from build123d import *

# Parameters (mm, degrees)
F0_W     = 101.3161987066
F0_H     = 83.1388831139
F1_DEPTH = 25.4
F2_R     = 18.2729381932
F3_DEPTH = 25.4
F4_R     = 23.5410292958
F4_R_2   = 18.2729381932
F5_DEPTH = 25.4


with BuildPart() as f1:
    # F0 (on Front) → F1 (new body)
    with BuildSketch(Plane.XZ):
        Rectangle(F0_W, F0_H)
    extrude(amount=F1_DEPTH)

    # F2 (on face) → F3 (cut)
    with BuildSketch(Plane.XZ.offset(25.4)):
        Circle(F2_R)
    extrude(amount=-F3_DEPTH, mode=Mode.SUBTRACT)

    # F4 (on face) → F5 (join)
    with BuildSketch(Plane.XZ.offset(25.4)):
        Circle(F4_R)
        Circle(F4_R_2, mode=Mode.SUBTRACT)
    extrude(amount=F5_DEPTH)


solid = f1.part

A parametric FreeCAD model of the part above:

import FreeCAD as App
import Part
import Sketcher
Q = App.Units.Quantity

doc = App.newDocument("Part")
params = doc.addObject("Spreadsheet::Sheet", "Params")
for row, (alias, value) in enumerate([
    ("pad1_length", "1 in"),
    ("pocket1_length", "1 in"),
    ("pad2_length", "1 in"),
], start=1):
    params.set(f"A{row}", alias)
    params.set(f"B{row}", "=" + value)
    params.setAlias(f"B{row}", alias)

body = doc.addObject("PartDesign::Body", "Body")

# Sketch on XZ plane
sketch1 = doc.addObject("Sketcher::SketchObject", "Sketch")
body.addObject(sketch1)
sketch1.AttachmentSupport = (doc.XZ_Plane, [""])
sketch1.MapMode = "FlatFace"
sketch1.addGeometry(Part.LineSegment(App.Vector(-51, 42, 0), App.Vector(-51, -42, 0)), False)
sketch1.addGeometry(Part.LineSegment(App.Vector(-51, -42, 0), App.Vector(51, -42, 0)), False)
sketch1.addGeometry(Part.LineSegment(App.Vector(51, -42, 0), App.Vector(51, 42, 0)), False)
sketch1.addGeometry(Part.LineSegment(App.Vector(51, 42, 0), App.Vector(-51, 42, 0)), False)
sketch1.addConstraint(Sketcher.Constraint("Coincident", 0, 2, 1, 1))
sketch1.addConstraint(Sketcher.Constraint("Coincident", 1, 2, 2, 1))
sketch1.addConstraint(Sketcher.Constraint("Coincident", 2, 2, 3, 1))
sketch1.addConstraint(Sketcher.Constraint("Coincident", 3, 2, 0, 1))
sketch1.addConstraint(Sketcher.Constraint("Vertical", 0))
sketch1.addConstraint(Sketcher.Constraint("Horizontal", 1))
sketch1.addConstraint(Sketcher.Constraint("Vertical", 2))
sketch1.addConstraint(Sketcher.Constraint("Horizontal", 3))
sketch1.addConstraint(Sketcher.Constraint("Symmetric", 0, 2, 2, 2, -1, 1))
sketch1.addConstraint(Sketcher.Constraint("DistanceX", 1, 1, 1, 2, Q("101.316199 mm")))
sketch1.addConstraint(Sketcher.Constraint("DistanceY", 0, 2, 0, 1, Q("83.138883 mm")))
pad1 = doc.addObject("PartDesign::Pad", "Pad")
body.addObject(pad1)
pad1.Profile = sketch1
pad1.setExpression("Length", "Params.pad1_length")

# Sketch on XZ plane
sketch2 = doc.addObject("Sketcher::SketchObject", "Sketch001")
body.addObject(sketch2)
sketch2.AttachmentSupport = (doc.XZ_Plane, [""])
sketch2.MapMode = "FlatFace"
sketch2.AttachmentOffset = App.Placement(App.Vector(0, 0, 1 * 25.4), App.Rotation())
sketch2.addGeometry(Part.Circle(App.Vector(0, 0, 0), App.Vector(0, 0, 1), 18), False)
sketch2.addConstraint(Sketcher.Constraint("Coincident", 0, 3, -1, 1))
sketch2.addConstraint(Sketcher.Constraint("Diameter", 0, Q("36.545876 mm")))
pocket1 = doc.addObject("PartDesign::Pocket", "Pocket")
body.addObject(pocket1)
pocket1.Profile = sketch2
pocket1.setExpression("Length", "Params.pocket1_length")

# Sketch on XZ plane
sketch3 = doc.addObject("Sketcher::SketchObject", "Sketch002")
body.addObject(sketch3)
sketch3.AttachmentSupport = (doc.XZ_Plane, [""])
sketch3.MapMode = "FlatFace"
sketch3.AttachmentOffset = App.Placement(App.Vector(0, 0, 1 * 25.4), App.Rotation())
sketch3.addGeometry(Part.Circle(App.Vector(0, 0, 0), App.Vector(0, 0, 1), 24), False)
sketch3.addGeometry(Part.Circle(App.Vector(0, 0, 0), App.Vector(0, 0, 1), 18), False)
sketch3.addConstraint(Sketcher.Constraint("Coincident", 0, 3, -1, 1))
sketch3.addConstraint(Sketcher.Constraint("Coincident", 1, 3, -1, 1))
sketch3.addConstraint(Sketcher.Constraint("Diameter", 0, Q("47.082059 mm")))
sketch3.addConstraint(Sketcher.Constraint("Diameter", 1, Q("36.545876 mm")))
pad2 = doc.addObject("PartDesign::Pad", "Pad001")
body.addObject(pad2)
pad2.Profile = sketch3
pad2.setExpression("Length", "Params.pad2_length")

doc.recompute()
